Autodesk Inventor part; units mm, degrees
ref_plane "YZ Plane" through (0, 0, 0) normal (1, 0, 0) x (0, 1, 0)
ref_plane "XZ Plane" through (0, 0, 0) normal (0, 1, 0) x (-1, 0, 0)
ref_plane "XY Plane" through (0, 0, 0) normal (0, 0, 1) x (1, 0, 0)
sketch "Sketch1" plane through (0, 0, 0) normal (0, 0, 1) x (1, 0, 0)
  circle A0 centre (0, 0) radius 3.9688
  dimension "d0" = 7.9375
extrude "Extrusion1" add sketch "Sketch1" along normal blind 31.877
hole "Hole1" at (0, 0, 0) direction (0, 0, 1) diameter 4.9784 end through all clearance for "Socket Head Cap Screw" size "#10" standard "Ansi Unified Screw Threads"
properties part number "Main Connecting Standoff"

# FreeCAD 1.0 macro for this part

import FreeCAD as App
import Part
import Sketcher

V = App.Vector
Q = App.Units.Quantity

doc = App.newDocument("Part")
body = doc.addObject("PartDesign::Body", "Body")

# Sketch on XY plane
sketch1 = body.newObject("Sketcher::SketchObject", "Sketch")
sketch1.AttachmentSupport = (doc.getObject("XY_Plane"), [""])
sketch1.MapMode = "FlatFace"
sketch1.addGeometry(Part.Circle(V(0, 0, 0), V(0, 0, 1), 3.9688), False)
sketch1.addConstraint(Sketcher.Constraint("Coincident", 0, 3, -1, 1))
sketch1.addConstraint(Sketcher.Constraint("Diameter", 0, Q("0.3125 in")))
pad1 = body.newObject("PartDesign::Pad", "Pad")
pad1.Profile = sketch1
pad1.Length = Q("1.255 in")

# Sketch on XY plane
sketch2 = body.newObject("Sketcher::SketchObject", "Sketch001")
sketch2.AttachmentSupport = (doc.getObject("XY_Plane"), [""])
sketch2.MapMode = "FlatFace"
sketch2.addGeometry(Part.Circle(V(0, 0, 0), V(0, 0, 1), 2.4892), False)
sketch2.addConstraint(Sketcher.Constraint("Coincident", 0, 3, -1, 1))
sketch2.addConstraint(Sketcher.Constraint("Diameter", 0, Q("0.196 in")))
doc.recompute()
hole = body.newObject("PartDesign::Hole", "Hole")
hole.Profile = sketch2
hole.ThreadType = "None"
hole.Diameter = Q("0.196 in")
hole.DepthType = "ThroughAll"
hole.Reversed = True

doc.recompute()
